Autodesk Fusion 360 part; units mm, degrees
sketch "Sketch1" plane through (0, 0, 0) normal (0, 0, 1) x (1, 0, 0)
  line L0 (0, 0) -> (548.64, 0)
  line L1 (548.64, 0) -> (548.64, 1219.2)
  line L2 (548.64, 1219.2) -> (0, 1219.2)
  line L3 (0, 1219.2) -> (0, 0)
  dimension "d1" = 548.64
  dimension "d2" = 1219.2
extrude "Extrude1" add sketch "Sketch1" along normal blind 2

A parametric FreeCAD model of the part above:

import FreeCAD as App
import Part
import Sketcher
from FreeCAD import Vector
Q = App.Units.Quantity


def add_polygon(sketch, points):
    """Adds a closed chain of lines whose ends are joined by coincident constraints."""
    first, n = sketch.GeometryCount, len(points)
    for a, b in zip(points, points[1:] + points[:1]):
        sketch.addGeometry(Part.LineSegment(App.Vector(*a, 0), App.Vector(*b, 0)), False)
    for i in range(n):
        sketch.addConstraint(Sketcher.Constraint("Coincident", first + i, 2, first + (i + 1) % n, 1))

doc = App.newDocument("Part")
params = doc.addObject("Spreadsheet::Sheet", "Params")
for row, (alias, value) in enumerate([
    ("sketch1_height", "48 in"),
    ("sketch1_width", "21.6 in"),
    ("pad1_length", "2 mm"),
], start=1):
    params.set(f"A{row}", alias)
    params.set(f"B{row}", "=" + value)
    params.setAlias(f"B{row}", alias)

body = doc.addObject("PartDesign::Body", "Body")

# Sketch on XY plane
sketch1 = doc.addObject("Sketcher::SketchObject", "Sketch")
body.addObject(sketch1)
sketch1.AttachmentSupport = (doc.XY_Plane, [""])
sketch1.MapMode = "FlatFace"
add_polygon(sketch1, [(0, 1219.2), (0, 0), (548.64, 0), (548.64, 1219.2)])  # lines 0-3
sketch1.addConstraint([
    Sketcher.Constraint("Vertical", 0),
    Sketcher.Constraint("Horizontal", 1),
    Sketcher.Constraint("Vertical", 2),
    Sketcher.Constraint("Horizontal", 3),
    Sketcher.Constraint("Coincident", 0, 2, -1, 1),
    Sketcher.Constraint("DistanceY", 0, 2, 0, 1, Q("48 in")),
    Sketcher.Constraint("DistanceX", 1, 1, 1, 2, Q("21.6 in")),
])
sketch1.setExpression("Constraints[9]", "Params.sketch1_height")
sketch1.setExpression("Constraints[10]", "Params.sketch1_width")
pad1 = doc.addObject("PartDesign::Pad", "Pad")
body.addObject(pad1)
pad1.Profile = sketch1
pad1.setExpression("Length", "Params.pad1_length")

doc.recompute()
